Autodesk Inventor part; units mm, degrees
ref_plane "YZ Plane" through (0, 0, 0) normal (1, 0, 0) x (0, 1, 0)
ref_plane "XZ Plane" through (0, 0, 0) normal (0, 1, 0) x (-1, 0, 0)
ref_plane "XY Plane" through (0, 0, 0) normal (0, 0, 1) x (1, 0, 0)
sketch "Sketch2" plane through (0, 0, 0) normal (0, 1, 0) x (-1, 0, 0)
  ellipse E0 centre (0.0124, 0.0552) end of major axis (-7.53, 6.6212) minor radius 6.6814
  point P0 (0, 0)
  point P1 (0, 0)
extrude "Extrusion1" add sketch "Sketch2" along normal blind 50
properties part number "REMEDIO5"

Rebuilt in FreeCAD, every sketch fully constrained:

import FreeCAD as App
import Part
import Sketcher

V = App.Vector

doc = App.newDocument("Part")
params = doc.addObject("Spreadsheet::Sheet", "Params")
for row, (alias, value) in enumerate([
    ("pad1_length", "50 mm"),
], start=1):
    params.set(f"A{row}", alias)
    params.set(f"B{row}", "=" + value)
    params.setAlias(f"B{row}", alias)

body = doc.addObject("PartDesign::Body", "Body")

sketch1 = body.newObject("Sketcher::SketchObject", "Sketch")
sketch1.AttachmentSupport = (doc.getObject("XZ_Plane"), [""])
sketch1.MapMode = "FlatFace"
sketch1.addGeometry(Part.Ellipse(V(7.53, 6.6212, 0), V(-4.399404, 5.094575, 0), V(-0.0124, 0.0552, 0)), False)
sketch1.addConstraint(Sketcher.Constraint("Block", 0))
pad1 = body.newObject("PartDesign::Pad", "Pad")
pad1.Profile = sketch1
pad1.setExpression("Length", "Params.pad1_length")
pad1.Reversed = True

doc.recompute()
